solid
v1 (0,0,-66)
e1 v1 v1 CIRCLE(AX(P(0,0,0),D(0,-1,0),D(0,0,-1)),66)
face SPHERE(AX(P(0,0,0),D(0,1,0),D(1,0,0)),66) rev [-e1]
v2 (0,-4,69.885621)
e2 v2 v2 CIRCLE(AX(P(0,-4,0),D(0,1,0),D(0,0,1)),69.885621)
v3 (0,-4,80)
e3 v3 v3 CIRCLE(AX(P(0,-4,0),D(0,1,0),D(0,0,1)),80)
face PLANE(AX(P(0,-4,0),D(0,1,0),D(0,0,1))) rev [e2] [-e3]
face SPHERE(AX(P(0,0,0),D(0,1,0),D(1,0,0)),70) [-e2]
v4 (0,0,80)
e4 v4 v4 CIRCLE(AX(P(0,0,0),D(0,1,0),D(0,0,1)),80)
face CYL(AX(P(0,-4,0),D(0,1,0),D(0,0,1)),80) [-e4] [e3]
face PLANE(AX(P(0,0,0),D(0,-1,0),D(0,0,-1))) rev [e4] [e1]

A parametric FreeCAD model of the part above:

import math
import FreeCAD as App
import Part
import Sketcher
from FreeCAD import Vector


def faces_at(feature, points):
    """Names of the faces that lie closest to the given points."""
    faces = feature.Shape.Faces
    near = lambda p: min(range(len(faces)), key=lambda i: faces[i].distToShape(Part.Vertex(*p))[0])
    return sorted({f"Face{near(p) + 1}" for p in points})

doc = App.newDocument("Part")
params = doc.addObject("Spreadsheet::Sheet", "Params")
for row, (alias, value) in enumerate([
    ("sketch1_radius", "70 mm"),
    ("revolution_angle", "360 deg"),
    ("sketch2_width", "150 mm"),
    ("pocket1_length", "70 mm"),
    ("thickness_wall", "4 mm"),
    ("sketch3_diameter", "160 mm"),
    ("sketch3_diameter2", "132 mm"),
    ("pad1_length", "4 mm"),
], start=1):
    params.set(f"A{row}", alias)
    params.set(f"B{row}", "=" + value)
    params.setAlias(f"B{row}", alias)

body = doc.addObject("PartDesign::Body", "Body")

# Sketch on XY plane
sketch1 = doc.addObject("Sketcher::SketchObject", "Sketch")
body.addObject(sketch1)
sketch1.AttachmentSupport = (doc.XY_Plane, [""])
sketch1.MapMode = "FlatFace"
sketch1.addGeometry(Part.LineSegment(Vector(0, 70, 0), Vector(0, -70, 0)), False)
sketch1.addGeometry(Part.ArcOfCircle(Part.Circle(Vector(0, 0, 0), Vector(0, 0, 1), 70), math.radians(-90), math.radians(90)), False)
sketch1.addConstraint(Sketcher.Constraint("Coincident", 0, 1, 1, 2))
sketch1.addConstraint(Sketcher.Constraint("Coincident", 1, 1, 0, 2))
sketch1.addConstraint(Sketcher.Constraint("Vertical", 0))
sketch1.addConstraint(Sketcher.Constraint("Coincident", 1, 3, -1, 1))
sketch1.addConstraint(Sketcher.Constraint("PointOnObject", 0, 1, -2))
sketch1.addConstraint(Sketcher.Constraint("Radius", 1, 70.0))
sketch1.setExpression("Constraints[5]", "Params.sketch1_radius")
revolution = doc.addObject("PartDesign::Revolution", "Revolution")
body.addObject(revolution)
revolution.Profile = sketch1
revolution.ReferenceAxis = (sketch1, ["V_Axis"])
revolution.setExpression("Angle", "Params.revolution_angle")

# Sketch on XZ plane
sketch2 = doc.addObject("Sketcher::SketchObject", "Sketch001")
body.addObject(sketch2)
sketch2.AttachmentSupport = (doc.XZ_Plane, [""])
sketch2.MapMode = "FlatFace"
sketch2.addGeometry(Part.LineSegment(Vector(-75, -75, 0), Vector(-75, 75, 0)), False)
sketch2.addGeometry(Part.LineSegment(Vector(-75, 75, 0), Vector(75, 75, 0)), False)
sketch2.addGeometry(Part.LineSegment(Vector(75, 75, 0), Vector(75, -75, 0)), False)
sketch2.addGeometry(Part.LineSegment(Vector(75, -75, 0), Vector(-75, -75, 0)), False)
sketch2.addConstraint(Sketcher.Constraint("Coincident", 0, 2, 1, 1))
sketch2.addConstraint(Sketcher.Constraint("Coincident", 1, 2, 2, 1))
sketch2.addConstraint(Sketcher.Constraint("Coincident", 2, 2, 3, 1))
sketch2.addConstraint(Sketcher.Constraint("Coincident", 3, 2, 0, 1))
sketch2.addConstraint(Sketcher.Constraint("Vertical", 0))
sketch2.addConstraint(Sketcher.Constraint("Horizontal", 1))
sketch2.addConstraint(Sketcher.Constraint("Vertical", 2))
sketch2.addConstraint(Sketcher.Constraint("Horizontal", 3))
sketch2.addConstraint(Sketcher.Constraint("Symmetric", 0, 2, 2, 2, -1, 1))
sketch2.addConstraint(Sketcher.Constraint("Equal", 3, 0))
sketch2.addConstraint(Sketcher.Constraint("DistanceX", 1, 1, 1, 2, 150.0))
sketch2.setExpression("Constraints[10]", "Params.sketch2_width")
pocket1 = doc.addObject("PartDesign::Pocket", "Pocket")
body.addObject(pocket1)
pocket1.Profile = sketch2
pocket1.setExpression("Length", "Params.pocket1_length")
doc.recompute()

thickness = doc.addObject("PartDesign::Thickness", "Thickness")
body.addObject(thickness)
thickness.Base = (pocket1, faces_at(pocket1, [(0, 0, 0)]))
thickness.setExpression("Value", "Params.thickness_wall")
thickness.Reversed = True
thickness.Join = "Intersection"

# Sketch on XZ plane
sketch3 = doc.addObject("Sketcher::SketchObject", "Sketch002")
body.addObject(sketch3)
sketch3.AttachmentSupport = (doc.XZ_Plane, [""])
sketch3.MapMode = "FlatFace"
sketch3.addGeometry(Part.Circle(Vector(0, 0, 0), Vector(0, 0, 1), 80), False)
sketch3.addGeometry(Part.Circle(Vector(0, 0, 0), Vector(0, 0, 1), 66), False)
sketch3.addConstraint(Sketcher.Constraint("Coincident", 0, 3, -1, 1))
sketch3.addConstraint(Sketcher.Constraint("Coincident", 1, 3, -1, 1))
sketch3.addConstraint(Sketcher.Constraint("Diameter", 0, 160.0))
sketch3.addConstraint(Sketcher.Constraint("Diameter", 1, 132.0))
sketch3.setExpression("Constraints[2]", "Params.sketch3_diameter")
sketch3.setExpression("Constraints[3]", "Params.sketch3_diameter2")
pad1 = doc.addObject("PartDesign::Pad", "Pad")
body.addObject(pad1)
pad1.Profile = sketch3
pad1.setExpression("Length", "Params.pad1_length")

doc.recompute()
